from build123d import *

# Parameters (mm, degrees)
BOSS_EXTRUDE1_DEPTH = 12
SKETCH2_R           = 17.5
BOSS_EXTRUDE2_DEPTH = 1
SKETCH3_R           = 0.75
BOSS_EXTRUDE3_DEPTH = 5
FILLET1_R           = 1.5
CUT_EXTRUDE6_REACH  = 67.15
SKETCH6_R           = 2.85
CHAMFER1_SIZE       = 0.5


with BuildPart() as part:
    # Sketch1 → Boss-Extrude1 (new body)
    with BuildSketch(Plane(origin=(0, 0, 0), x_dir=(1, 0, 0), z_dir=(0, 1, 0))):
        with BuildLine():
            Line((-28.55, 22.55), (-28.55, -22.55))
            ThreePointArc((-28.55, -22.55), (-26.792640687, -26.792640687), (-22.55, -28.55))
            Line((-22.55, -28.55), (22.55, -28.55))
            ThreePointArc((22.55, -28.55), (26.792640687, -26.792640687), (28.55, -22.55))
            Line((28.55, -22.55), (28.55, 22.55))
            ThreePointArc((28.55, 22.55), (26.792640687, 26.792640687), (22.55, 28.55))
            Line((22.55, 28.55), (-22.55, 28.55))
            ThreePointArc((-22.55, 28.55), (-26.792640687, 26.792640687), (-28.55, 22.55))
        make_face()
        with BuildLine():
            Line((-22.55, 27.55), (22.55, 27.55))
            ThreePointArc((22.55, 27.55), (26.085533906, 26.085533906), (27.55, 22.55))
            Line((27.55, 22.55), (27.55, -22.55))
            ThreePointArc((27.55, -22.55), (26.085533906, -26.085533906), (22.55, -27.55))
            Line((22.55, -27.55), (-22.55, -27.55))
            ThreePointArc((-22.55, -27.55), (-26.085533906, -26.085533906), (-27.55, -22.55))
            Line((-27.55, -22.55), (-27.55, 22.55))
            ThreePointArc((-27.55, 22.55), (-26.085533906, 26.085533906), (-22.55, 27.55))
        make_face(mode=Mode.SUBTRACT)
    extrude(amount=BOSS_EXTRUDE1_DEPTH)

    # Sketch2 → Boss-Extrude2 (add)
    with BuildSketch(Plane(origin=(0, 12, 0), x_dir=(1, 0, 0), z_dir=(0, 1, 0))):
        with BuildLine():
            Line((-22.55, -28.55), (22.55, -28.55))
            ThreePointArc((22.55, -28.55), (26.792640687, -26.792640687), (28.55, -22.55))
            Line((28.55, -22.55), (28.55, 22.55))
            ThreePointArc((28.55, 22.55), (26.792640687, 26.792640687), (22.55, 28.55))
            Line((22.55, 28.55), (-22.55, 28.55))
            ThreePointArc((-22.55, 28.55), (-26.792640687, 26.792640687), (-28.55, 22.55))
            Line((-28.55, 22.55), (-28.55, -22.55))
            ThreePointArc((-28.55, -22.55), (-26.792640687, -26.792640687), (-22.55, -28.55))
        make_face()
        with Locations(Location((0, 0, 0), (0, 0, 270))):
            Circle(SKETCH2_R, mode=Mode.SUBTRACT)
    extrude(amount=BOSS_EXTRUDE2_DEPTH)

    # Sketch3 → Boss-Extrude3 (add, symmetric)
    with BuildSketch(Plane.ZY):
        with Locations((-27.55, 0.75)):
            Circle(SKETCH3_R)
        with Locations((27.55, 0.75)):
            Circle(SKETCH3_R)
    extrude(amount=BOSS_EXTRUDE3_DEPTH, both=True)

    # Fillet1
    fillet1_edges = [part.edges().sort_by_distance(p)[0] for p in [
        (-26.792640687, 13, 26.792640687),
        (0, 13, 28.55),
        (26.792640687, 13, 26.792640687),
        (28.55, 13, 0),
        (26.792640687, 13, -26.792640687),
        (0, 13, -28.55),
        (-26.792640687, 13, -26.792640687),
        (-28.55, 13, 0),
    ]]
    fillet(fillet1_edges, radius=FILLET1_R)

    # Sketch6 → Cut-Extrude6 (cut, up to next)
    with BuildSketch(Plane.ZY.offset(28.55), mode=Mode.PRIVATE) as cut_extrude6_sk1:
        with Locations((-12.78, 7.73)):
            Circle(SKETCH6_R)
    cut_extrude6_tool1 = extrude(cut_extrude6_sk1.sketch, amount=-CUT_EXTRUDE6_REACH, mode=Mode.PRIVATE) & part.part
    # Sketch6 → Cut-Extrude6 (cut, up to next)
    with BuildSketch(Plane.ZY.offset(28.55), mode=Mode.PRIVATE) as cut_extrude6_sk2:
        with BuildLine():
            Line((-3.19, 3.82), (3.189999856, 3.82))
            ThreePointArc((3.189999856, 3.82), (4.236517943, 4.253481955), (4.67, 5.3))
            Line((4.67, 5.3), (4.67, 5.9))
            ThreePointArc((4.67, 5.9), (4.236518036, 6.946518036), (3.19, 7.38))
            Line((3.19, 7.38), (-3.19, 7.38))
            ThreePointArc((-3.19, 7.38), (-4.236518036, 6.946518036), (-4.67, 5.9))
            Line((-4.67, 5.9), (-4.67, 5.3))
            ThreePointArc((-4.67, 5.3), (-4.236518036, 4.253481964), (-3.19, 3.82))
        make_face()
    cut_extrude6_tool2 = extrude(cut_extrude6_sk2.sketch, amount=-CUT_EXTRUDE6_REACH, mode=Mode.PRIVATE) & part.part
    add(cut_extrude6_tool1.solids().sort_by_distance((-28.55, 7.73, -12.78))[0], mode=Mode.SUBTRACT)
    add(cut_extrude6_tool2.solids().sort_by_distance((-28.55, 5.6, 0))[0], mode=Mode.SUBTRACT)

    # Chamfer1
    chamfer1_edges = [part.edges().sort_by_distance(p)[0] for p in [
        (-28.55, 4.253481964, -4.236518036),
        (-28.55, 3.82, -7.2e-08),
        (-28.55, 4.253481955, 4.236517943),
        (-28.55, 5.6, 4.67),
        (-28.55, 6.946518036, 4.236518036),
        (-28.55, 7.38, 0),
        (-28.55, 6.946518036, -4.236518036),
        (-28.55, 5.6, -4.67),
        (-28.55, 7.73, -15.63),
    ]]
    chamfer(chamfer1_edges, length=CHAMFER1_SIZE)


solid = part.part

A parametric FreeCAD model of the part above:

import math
import FreeCAD as App
import Part
import Sketcher
from FreeCAD import Vector
Q = App.Units.Quantity


def edges_at(feature, points):
    """Names of the edges that pass closest to the given points."""
    edges = feature.Shape.Edges
    near = lambda p: min(range(len(edges)), key=lambda i: edges[i].distToShape(Part.Vertex(*p))[0])
    return sorted({f"Edge{near(p) + 1}" for p in points})

doc = App.newDocument("Part")
params = doc.addObject("Spreadsheet::Sheet", "Params")
for row, (alias, value) in enumerate([
    ("sketch1_radius", "6 mm"),
    ("sketch1_radius2", "5 mm"),
    ("sketch1_width", "45.1 mm"),
    ("pad1_length", "12 mm"),
    ("sketch2_diameter", "35 mm"),
    ("sketch2_radius", "6 mm"),
    ("sketch2_width", "45.1 mm"),
    ("pad2_length", "1 mm"),
    ("sketch3_diameter", "1.5 mm"),
    ("pad3_length", "10 mm"),
    ("fillet_radius", "1.5 mm"),
    ("sketch4_diameter", "5.7 mm"),
    ("sketch5_radius", "1.48 mm"),
    ("sketch5_width", "0.6 mm"),
    ("sketch5_height", "6.38 mm"),
    ("chamfer_size", "0.5 mm"),
], start=1):
    params.set(f"A{row}", alias)
    params.set(f"B{row}", "=" + value)
    params.setAlias(f"B{row}", alias)

body = doc.addObject("PartDesign::Body", "Body")

# Sketch on XZ plane
sketch1 = body.newObject("Sketcher::SketchObject", "Sketch")
sketch1.AttachmentSupport = (doc.getObject("XZ_Plane"), [""])
sketch1.MapMode = "FlatFace"
sketch1.addGeometry([
    Part.LineSegment(Vector(-29, -23, 0), Vector(-29, 23, 0)),  # 0
    Part.ArcOfCircle(Part.Circle(Vector(-23, 23, 0), Vector(0, 0, 1), 6), math.radians(90), math.radians(180)),  # 1
    Part.LineSegment(Vector(-23, 29, 0), Vector(23, 29, 0)),  # 2
    Part.ArcOfCircle(Part.Circle(Vector(23, 23, 0), Vector(0, 0, 1), 6), math.radians(0), math.radians(90)),  # 3
    Part.LineSegment(Vector(29, 23, 0), Vector(29, -23, 0)),  # 4
    Part.ArcOfCircle(Part.Circle(Vector(23, -23, 0), Vector(0, 0, 1), 6), math.radians(-90), math.radians(0)),  # 5
    Part.LineSegment(Vector(23, -29, 0), Vector(-23, -29, 0)),  # 6
    Part.ArcOfCircle(Part.Circle(Vector(-23, -23, 0), Vector(0, 0, 1), 6), math.radians(180), math.radians(270)),  # 7
    Part.ArcOfCircle(Part.Circle(Vector(-23, -23, 0), Vector(0, 0, 1), 5), math.radians(180), math.radians(270)),  # 8
    Part.LineSegment(Vector(-23, -28, 0), Vector(23, -28, 0)),  # 9
    Part.ArcOfCircle(Part.Circle(Vector(23, -23, 0), Vector(0, 0, 1), 5), math.radians(-90), math.radians(0)),  # 10
    Part.LineSegment(Vector(28, -23, 0), Vector(28, 23, 0)),  # 11
    Part.ArcOfCircle(Part.Circle(Vector(23, 23, 0), Vector(0, 0, 1), 5), math.radians(0), math.radians(90)),  # 12
    Part.LineSegment(Vector(23, 28, 0), Vector(-23, 28, 0)),  # 13
    Part.ArcOfCircle(Part.Circle(Vector(-23, 23, 0), Vector(0, 0, 1), 5), math.radians(90), math.radians(180)),  # 14
    Part.LineSegment(Vector(-28, 23, 0), Vector(-28, -23, 0)),  # 15
], False)
sketch1.addConstraint([
    Sketcher.Constraint("Tangent", 0, 2, 1, 2),
    Sketcher.Constraint("Tangent", 1, 1, 2, 1),
    Sketcher.Constraint("Tangent", 2, 2, 3, 2),
    Sketcher.Constraint("Tangent", 3, 1, 4, 1),
    Sketcher.Constraint("Tangent", 4, 2, 5, 2),
    Sketcher.Constraint("Tangent", 5, 1, 6, 1),
    Sketcher.Constraint("Tangent", 6, 2, 7, 2),
    Sketcher.Constraint("Tangent", 7, 1, 0, 1),
    Sketcher.Constraint("Tangent", 8, 2, 9, 1),
    Sketcher.Constraint("Tangent", 9, 2, 10, 1),
    Sketcher.Constraint("Tangent", 10, 2, 11, 1),
    Sketcher.Constraint("Tangent", 11, 2, 12, 1),
    Sketcher.Constraint("Tangent", 12, 2, 13, 1),
    Sketcher.Constraint("Tangent", 13, 2, 14, 1),
    Sketcher.Constraint("Tangent", 14, 2, 15, 1),
    Sketcher.Constraint("Tangent", 15, 2, 8, 1),
    Sketcher.Constraint("Vertical", 0),
    Sketcher.Constraint("Horizontal", 2),
    Sketcher.Constraint("Vertical", 4),
    Sketcher.Constraint("Horizontal", 6),
    Sketcher.Constraint("Horizontal", 9),
    Sketcher.Constraint("Vertical", 11),
    Sketcher.Constraint("Horizontal", 13),
    Sketcher.Constraint("Vertical", 15),
    Sketcher.Constraint("Coincident", 8, 3, 7, 3),
    Sketcher.Constraint("Coincident", 10, 3, 5, 3),
    Sketcher.Constraint("Coincident", 12, 3, 3, 3),
    Sketcher.Constraint("Equal", 1, 3),
    Sketcher.Constraint("Equal", 3, 5),
    Sketcher.Constraint("Equal", 5, 7),
    Sketcher.Constraint("Equal", 12, 14),
    Sketcher.Constraint("Symmetric", 1, 3, 5, 3, -1, 1),
    Sketcher.Constraint("Equal", 13, 0),
    Sketcher.Constraint("Radius", 1, Q("6 mm")),
    Sketcher.Constraint("Radius", 8, Q("5 mm")),
    Sketcher.Constraint("DistanceX", 2, 1, 2, 2, Q("45.1 mm")),
])
sketch1.setExpression("Constraints[33]", "Params.sketch1_radius")
sketch1.setExpression("Constraints[34]", "Params.sketch1_radius2")
sketch1.setExpression("Constraints[35]", "Params.sketch1_width")
pad1 = body.newObject("PartDesign::Pad", "Pad")
pad1.Profile = sketch1
pad1.setExpression("Length", "Params.pad1_length")
pad1.Reversed = True

# Sketch on XZ plane
sketch2 = body.newObject("Sketcher::SketchObject", "Sketch001")
sketch2.AttachmentSupport = (doc.getObject("XZ_Plane"), [""])
sketch2.MapMode = "FlatFace"
sketch2.AttachmentOffset = App.Placement(Vector(0, 0, -12), App.Rotation())
sketch2.addGeometry([
    Part.LineSegment(Vector(-23, 29, 0), Vector(23, 29, 0)),  # 0
    Part.ArcOfCircle(Part.Circle(Vector(23, 23, 0), Vector(0, 0, 1), 6), math.radians(0), math.radians(90)),  # 1
    Part.LineSegment(Vector(29, 23, 0), Vector(29, -23, 0)),  # 2
    Part.ArcOfCircle(Part.Circle(Vector(23, -23, 0), Vector(0, 0, 1), 6), math.radians(-90), math.radians(0)),  # 3
    Part.LineSegment(Vector(23, -29, 0), Vector(-23, -29, 0)),  # 4
    Part.ArcOfCircle(Part.Circle(Vector(-23, -23, 0), Vector(0, 0, 1), 6), math.radians(180), math.radians(270)),  # 5
    Part.LineSegment(Vector(-29, -23, 0), Vector(-29, 23, 0)),  # 6
    Part.ArcOfCircle(Part.Circle(Vector(-23, 23, 0), Vector(0, 0, 1), 6), math.radians(90), math.radians(180)),  # 7
    Part.Circle(Vector(0, 0, 0), Vector(0, 0, 1), 18),  # 8
], False)
sketch2.addConstraint([
    Sketcher.Constraint("Tangent", 0, 2, 1, 2),
    Sketcher.Constraint("Tangent", 1, 1, 2, 1),
    Sketcher.Constraint("Tangent", 2, 2, 3, 2),
    Sketcher.Constraint("Tangent", 3, 1, 4, 1),
    Sketcher.Constraint("Tangent", 4, 2, 5, 2),
    Sketcher.Constraint("Tangent", 5, 1, 6, 1),
    Sketcher.Constraint("Tangent", 6, 2, 7, 2),
    Sketcher.Constraint("Tangent", 7, 1, 0, 1),
    Sketcher.Constraint("Horizontal", 0),
    Sketcher.Constraint("Vertical", 2),
    Sketcher.Constraint("Horizontal", 4),
    Sketcher.Constraint("Vertical", 6),
    Sketcher.Constraint("Coincident", 8, 3, -1, 1),
    Sketcher.Constraint("Equal", 1, 3),
    Sketcher.Constraint("Equal", 3, 5),
    Sketcher.Constraint("Equal", 5, 7),
    Sketcher.Constraint("Symmetric", 1, 3, 5, 3, -1, 1),
    Sketcher.Constraint("Equal", 4, 2),
    Sketcher.Constraint("Diameter", 8, Q("35 mm")),
    Sketcher.Constraint("Radius", 1, Q("6 mm")),
    Sketcher.Constraint("DistanceX", 0, 1, 0, 2, Q("45.1 mm")),
])
sketch2.setExpression("Constraints[18]", "Params.sketch2_diameter")
sketch2.setExpression("Constraints[19]", "Params.sketch2_radius")
sketch2.setExpression("Constraints[20]", "Params.sketch2_width")
pad2 = body.newObject("PartDesign::Pad", "Pad001")
pad2.Profile = sketch2
pad2.setExpression("Length", "Params.pad2_length")
pad2.Reversed = True

# Sketch on YZ plane
sketch3 = body.newObject("Sketcher::SketchObject", "Sketch002")
sketch3.AttachmentSupport = (doc.getObject("YZ_Plane"), [""])
sketch3.MapMode = "FlatFace"
sketch3.addGeometry([
    Part.Circle(Vector(0.8, -27.6, 0), Vector(0, 0, 1), 0.8),
    Part.Circle(Vector(0.8, 27.6, 0), Vector(0, 0, 1), 0.8),
], False)
sketch3.addConstraint([
    Sketcher.Constraint("Equal", 0, 1),
    Sketcher.Constraint("Symmetric", 0, 3, 1, 3, -1),
    Sketcher.Constraint("Diameter", 0, Q("1.5 mm")),
    Sketcher.Constraint("DistanceY", 0, 3, 1, 3, Q("55.1 mm")),
    Sketcher.Constraint("DistanceX", -1, 1, 0, 3, Q("0.75 mm")),
])
sketch3.setExpression("Constraints[2]", "Params.sketch3_diameter")
pad3 = body.newObject("PartDesign::Pad", "Pad002")
pad3.Profile = sketch3
pad3.setExpression("Length", "Params.pad3_length")
pad3.Midplane = True
doc.recompute()

fillet = body.newObject("PartDesign::Fillet", "Fillet")
fillet.Base = (pad3, edges_at(pad3, [
    (-26.793, 13, 26.793),
    (0, 13, 28.55),
    (26.793, 13, 26.793),
    (28.55, 13, 0),
    (26.793, 13, -26.793),
    (0, 13, -28.55),
    (-26.793, 13, -26.793),
    (-28.55, 13, 0),
]))
fillet.setExpression("Radius", "Params.fillet_radius")

# Sketch on YZ plane
sketch4 = body.newObject("Sketcher::SketchObject", "Sketch003")
sketch4.AttachmentSupport = (doc.getObject("YZ_Plane"), [""])
sketch4.MapMode = "FlatFace"
sketch4.AttachmentOffset = App.Placement(Vector(0, 0, -28.55), App.Rotation())
sketch4.addGeometry(Part.Circle(Vector(7.7, -12.8, 0), Vector(0, 0, 1), 2.9), False)
sketch4.addConstraint([
    Sketcher.Constraint("Diameter", 0, Q("5.7 mm")),
    Sketcher.Constraint("DistanceX", -1, 1, 0, 3, Q("7.73 mm")),
    Sketcher.Constraint("DistanceY", 0, 3, -1, 1, Q("12.78 mm")),
])
sketch4.setExpression("Constraints[0]", "Params.sketch4_diameter")
pocket1 = body.newObject("PartDesign::Pocket", "Pocket")
pocket1.Profile = sketch4
pocket1.Type = "UpToFirst"
pocket1.Reversed = True

# Sketch on YZ plane
sketch5 = body.newObject("Sketcher::SketchObject", "Sketch004")
sketch5.AttachmentSupport = (doc.getObject("YZ_Plane"), [""])
sketch5.MapMode = "FlatFace"
sketch5.AttachmentOffset = App.Placement(Vector(0, 0, -28.55), App.Rotation())
sketch5.addGeometry([
    Part.LineSegment(Vector(3.8, -3.2, 0), Vector(3.8, 3.2, 0)),  # 0
    Part.ArcOfCircle(Part.Circle(Vector(5.3, 3.2, 0), Vector(0, 0, 1), 1.5), math.radians(90), math.radians(180)),  # 1
    Part.LineSegment(Vector(5.3, 4.7, 0), Vector(5.9, 4.7, 0)),  # 2
    Part.ArcOfCircle(Part.Circle(Vector(5.9, 3.2, 0), Vector(0, 0, 1), 1.5), math.radians(0), math.radians(90)),  # 3
    Part.LineSegment(Vector(7.4, 3.2, 0), Vector(7.4, -3.2, 0)),  # 4
    Part.ArcOfCircle(Part.Circle(Vector(5.9, -3.2, 0), Vector(0, 0, 1), 1.5), math.radians(-90), math.radians(0)),  # 5
    Part.LineSegment(Vector(5.9, -4.7, 0), Vector(5.3, -4.7, 0)),  # 6
    Part.ArcOfCircle(Part.Circle(Vector(5.3, -3.2, 0), Vector(0, 0, 1), 1.5), math.radians(-180), math.radians(-90)),  # 7
], False)
sketch5.addConstraint([
    Sketcher.Constraint("Tangent", 0, 2, 1, 2),
    Sketcher.Constraint("Tangent", 1, 1, 2, 1),
    Sketcher.Constraint("Tangent", 2, 2, 3, 2),
    Sketcher.Constraint("Tangent", 3, 1, 4, 1),
    Sketcher.Constraint("Tangent", 4, 2, 5, 2),
    Sketcher.Constraint("Tangent", 5, 1, 6, 1),
    Sketcher.Constraint("Tangent", 6, 2, 7, 2),
    Sketcher.Constraint("Tangent", 7, 1, 0, 1),
    Sketcher.Constraint("Vertical", 0),
    Sketcher.Constraint("Horizontal", 2),
    Sketcher.Constraint("Vertical", 4),
    Sketcher.Constraint("Horizontal", 6),
    Sketcher.Constraint("Equal", 1, 3),
    Sketcher.Constraint("Equal", 3, 5),
    Sketcher.Constraint("Equal", 5, 7),
    Sketcher.Constraint("Radius", 1, Q("1.48 mm")),
    Sketcher.Constraint("DistanceX", 2, 1, 2, 2, Q("0.6 mm")),
    Sketcher.Constraint("DistanceY", 0, 1, 0, 2, Q("6.38 mm")),
    Sketcher.Constraint("DistanceX", -1, 1, 1, 3, Q("5.3 mm")),
    Sketcher.Constraint("DistanceY", -1, 1, 1, 3, Q("3.19 mm")),
])
sketch5.setExpression("Constraints[15]", "Params.sketch5_radius")
sketch5.setExpression("Constraints[16]", "Params.sketch5_width")
sketch5.setExpression("Constraints[17]", "Params.sketch5_height")
pocket2 = body.newObject("PartDesign::Pocket", "Pocket001")
pocket2.Profile = sketch5
pocket2.Type = "UpToFirst"
pocket2.Reversed = True
doc.recompute()

chamfer = body.newObject("PartDesign::Chamfer", "Chamfer")
chamfer.Base = (pocket2, edges_at(pocket2, [
    (-28.55, 4.253, -4.237),
    (-28.55, 3.82, 0),
    (-28.55, 4.253, 4.237),
    (-28.55, 5.6, 4.67),
    (-28.55, 6.947, 4.237),
    (-28.55, 7.38, 0),
    (-28.55, 6.947, -4.237),
    (-28.55, 5.6, -4.67),
    (-28.55, 7.73, -15.63),
]))
chamfer.setExpression("Size", "Params.chamfer_size")

doc.recompute()
